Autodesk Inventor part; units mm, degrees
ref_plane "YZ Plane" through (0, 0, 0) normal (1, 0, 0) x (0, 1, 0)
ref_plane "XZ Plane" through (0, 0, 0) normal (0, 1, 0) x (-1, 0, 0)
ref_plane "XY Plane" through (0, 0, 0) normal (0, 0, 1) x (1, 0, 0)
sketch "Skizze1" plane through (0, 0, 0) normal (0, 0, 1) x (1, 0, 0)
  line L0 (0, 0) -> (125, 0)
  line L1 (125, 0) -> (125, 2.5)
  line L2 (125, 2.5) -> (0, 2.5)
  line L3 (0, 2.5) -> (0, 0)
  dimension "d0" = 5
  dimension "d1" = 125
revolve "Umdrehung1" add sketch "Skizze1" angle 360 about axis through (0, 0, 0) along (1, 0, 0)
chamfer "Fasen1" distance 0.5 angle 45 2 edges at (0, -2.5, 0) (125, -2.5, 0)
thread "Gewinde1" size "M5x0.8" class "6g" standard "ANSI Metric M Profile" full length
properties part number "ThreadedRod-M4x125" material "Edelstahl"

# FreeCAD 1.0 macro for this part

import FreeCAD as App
import Part
import Sketcher


def edges_at(feature, points):
    """Names of the edges that pass closest to the given points."""
    edges = feature.Shape.Edges
    near = lambda p: min(range(len(edges)), key=lambda i: edges[i].distToShape(Part.Vertex(*p))[0])
    return sorted({f"Edge{near(p) + 1}" for p in points})

doc = App.newDocument("Part")
body = doc.addObject("PartDesign::Body", "Body")

# Sketch on XY plane
sketch1 = body.newObject("Sketcher::SketchObject", "Sketch")
sketch1.AttachmentSupport = (doc.getObject("XY_Plane"), [""])
sketch1.MapMode = "FlatFace"
sketch1.addGeometry([
    Part.LineSegment(App.Vector(0, 2.5, 0), App.Vector(0, 0, 0)),
    Part.LineSegment(App.Vector(0, 0, 0), App.Vector(125, 0, 0)),
    Part.LineSegment(App.Vector(125, 0, 0), App.Vector(125, 2.5, 0)),
    Part.LineSegment(App.Vector(125, 2.5, 0), App.Vector(0, 2.5, 0)),
], False)
sketch1.addConstraint([
    Sketcher.Constraint("Coincident", 0, 2, 1, 1),
    Sketcher.Constraint("Coincident", 1, 2, 2, 1),
    Sketcher.Constraint("Coincident", 2, 2, 3, 1),
    Sketcher.Constraint("Coincident", 3, 2, 0, 1),
    Sketcher.Constraint("Vertical", 0),
    Sketcher.Constraint("Horizontal", 1),
    Sketcher.Constraint("Vertical", 2),
    Sketcher.Constraint("Horizontal", 3),
    Sketcher.Constraint("Coincident", 0, 2, -1, 1),
    Sketcher.Constraint("DistanceX", 1, 1, 1, 2, 125.0),
    Sketcher.Constraint("DistanceY", 0, 2, 0, 1, 2.5),
])
revolution = body.newObject("PartDesign::Revolution", "Revolution")
revolution.Profile = sketch1
revolution.ReferenceAxis = (sketch1, ["H_Axis"])
revolution.Angle = 360
doc.recompute()

chamfer = body.newObject("PartDesign::Chamfer", "Chamfer")
chamfer.Base = (revolution, edges_at(revolution, [(0, -2.5, 0), (125, -2.5, 0)]))
chamfer.Size = 0.5

doc.recompute()
